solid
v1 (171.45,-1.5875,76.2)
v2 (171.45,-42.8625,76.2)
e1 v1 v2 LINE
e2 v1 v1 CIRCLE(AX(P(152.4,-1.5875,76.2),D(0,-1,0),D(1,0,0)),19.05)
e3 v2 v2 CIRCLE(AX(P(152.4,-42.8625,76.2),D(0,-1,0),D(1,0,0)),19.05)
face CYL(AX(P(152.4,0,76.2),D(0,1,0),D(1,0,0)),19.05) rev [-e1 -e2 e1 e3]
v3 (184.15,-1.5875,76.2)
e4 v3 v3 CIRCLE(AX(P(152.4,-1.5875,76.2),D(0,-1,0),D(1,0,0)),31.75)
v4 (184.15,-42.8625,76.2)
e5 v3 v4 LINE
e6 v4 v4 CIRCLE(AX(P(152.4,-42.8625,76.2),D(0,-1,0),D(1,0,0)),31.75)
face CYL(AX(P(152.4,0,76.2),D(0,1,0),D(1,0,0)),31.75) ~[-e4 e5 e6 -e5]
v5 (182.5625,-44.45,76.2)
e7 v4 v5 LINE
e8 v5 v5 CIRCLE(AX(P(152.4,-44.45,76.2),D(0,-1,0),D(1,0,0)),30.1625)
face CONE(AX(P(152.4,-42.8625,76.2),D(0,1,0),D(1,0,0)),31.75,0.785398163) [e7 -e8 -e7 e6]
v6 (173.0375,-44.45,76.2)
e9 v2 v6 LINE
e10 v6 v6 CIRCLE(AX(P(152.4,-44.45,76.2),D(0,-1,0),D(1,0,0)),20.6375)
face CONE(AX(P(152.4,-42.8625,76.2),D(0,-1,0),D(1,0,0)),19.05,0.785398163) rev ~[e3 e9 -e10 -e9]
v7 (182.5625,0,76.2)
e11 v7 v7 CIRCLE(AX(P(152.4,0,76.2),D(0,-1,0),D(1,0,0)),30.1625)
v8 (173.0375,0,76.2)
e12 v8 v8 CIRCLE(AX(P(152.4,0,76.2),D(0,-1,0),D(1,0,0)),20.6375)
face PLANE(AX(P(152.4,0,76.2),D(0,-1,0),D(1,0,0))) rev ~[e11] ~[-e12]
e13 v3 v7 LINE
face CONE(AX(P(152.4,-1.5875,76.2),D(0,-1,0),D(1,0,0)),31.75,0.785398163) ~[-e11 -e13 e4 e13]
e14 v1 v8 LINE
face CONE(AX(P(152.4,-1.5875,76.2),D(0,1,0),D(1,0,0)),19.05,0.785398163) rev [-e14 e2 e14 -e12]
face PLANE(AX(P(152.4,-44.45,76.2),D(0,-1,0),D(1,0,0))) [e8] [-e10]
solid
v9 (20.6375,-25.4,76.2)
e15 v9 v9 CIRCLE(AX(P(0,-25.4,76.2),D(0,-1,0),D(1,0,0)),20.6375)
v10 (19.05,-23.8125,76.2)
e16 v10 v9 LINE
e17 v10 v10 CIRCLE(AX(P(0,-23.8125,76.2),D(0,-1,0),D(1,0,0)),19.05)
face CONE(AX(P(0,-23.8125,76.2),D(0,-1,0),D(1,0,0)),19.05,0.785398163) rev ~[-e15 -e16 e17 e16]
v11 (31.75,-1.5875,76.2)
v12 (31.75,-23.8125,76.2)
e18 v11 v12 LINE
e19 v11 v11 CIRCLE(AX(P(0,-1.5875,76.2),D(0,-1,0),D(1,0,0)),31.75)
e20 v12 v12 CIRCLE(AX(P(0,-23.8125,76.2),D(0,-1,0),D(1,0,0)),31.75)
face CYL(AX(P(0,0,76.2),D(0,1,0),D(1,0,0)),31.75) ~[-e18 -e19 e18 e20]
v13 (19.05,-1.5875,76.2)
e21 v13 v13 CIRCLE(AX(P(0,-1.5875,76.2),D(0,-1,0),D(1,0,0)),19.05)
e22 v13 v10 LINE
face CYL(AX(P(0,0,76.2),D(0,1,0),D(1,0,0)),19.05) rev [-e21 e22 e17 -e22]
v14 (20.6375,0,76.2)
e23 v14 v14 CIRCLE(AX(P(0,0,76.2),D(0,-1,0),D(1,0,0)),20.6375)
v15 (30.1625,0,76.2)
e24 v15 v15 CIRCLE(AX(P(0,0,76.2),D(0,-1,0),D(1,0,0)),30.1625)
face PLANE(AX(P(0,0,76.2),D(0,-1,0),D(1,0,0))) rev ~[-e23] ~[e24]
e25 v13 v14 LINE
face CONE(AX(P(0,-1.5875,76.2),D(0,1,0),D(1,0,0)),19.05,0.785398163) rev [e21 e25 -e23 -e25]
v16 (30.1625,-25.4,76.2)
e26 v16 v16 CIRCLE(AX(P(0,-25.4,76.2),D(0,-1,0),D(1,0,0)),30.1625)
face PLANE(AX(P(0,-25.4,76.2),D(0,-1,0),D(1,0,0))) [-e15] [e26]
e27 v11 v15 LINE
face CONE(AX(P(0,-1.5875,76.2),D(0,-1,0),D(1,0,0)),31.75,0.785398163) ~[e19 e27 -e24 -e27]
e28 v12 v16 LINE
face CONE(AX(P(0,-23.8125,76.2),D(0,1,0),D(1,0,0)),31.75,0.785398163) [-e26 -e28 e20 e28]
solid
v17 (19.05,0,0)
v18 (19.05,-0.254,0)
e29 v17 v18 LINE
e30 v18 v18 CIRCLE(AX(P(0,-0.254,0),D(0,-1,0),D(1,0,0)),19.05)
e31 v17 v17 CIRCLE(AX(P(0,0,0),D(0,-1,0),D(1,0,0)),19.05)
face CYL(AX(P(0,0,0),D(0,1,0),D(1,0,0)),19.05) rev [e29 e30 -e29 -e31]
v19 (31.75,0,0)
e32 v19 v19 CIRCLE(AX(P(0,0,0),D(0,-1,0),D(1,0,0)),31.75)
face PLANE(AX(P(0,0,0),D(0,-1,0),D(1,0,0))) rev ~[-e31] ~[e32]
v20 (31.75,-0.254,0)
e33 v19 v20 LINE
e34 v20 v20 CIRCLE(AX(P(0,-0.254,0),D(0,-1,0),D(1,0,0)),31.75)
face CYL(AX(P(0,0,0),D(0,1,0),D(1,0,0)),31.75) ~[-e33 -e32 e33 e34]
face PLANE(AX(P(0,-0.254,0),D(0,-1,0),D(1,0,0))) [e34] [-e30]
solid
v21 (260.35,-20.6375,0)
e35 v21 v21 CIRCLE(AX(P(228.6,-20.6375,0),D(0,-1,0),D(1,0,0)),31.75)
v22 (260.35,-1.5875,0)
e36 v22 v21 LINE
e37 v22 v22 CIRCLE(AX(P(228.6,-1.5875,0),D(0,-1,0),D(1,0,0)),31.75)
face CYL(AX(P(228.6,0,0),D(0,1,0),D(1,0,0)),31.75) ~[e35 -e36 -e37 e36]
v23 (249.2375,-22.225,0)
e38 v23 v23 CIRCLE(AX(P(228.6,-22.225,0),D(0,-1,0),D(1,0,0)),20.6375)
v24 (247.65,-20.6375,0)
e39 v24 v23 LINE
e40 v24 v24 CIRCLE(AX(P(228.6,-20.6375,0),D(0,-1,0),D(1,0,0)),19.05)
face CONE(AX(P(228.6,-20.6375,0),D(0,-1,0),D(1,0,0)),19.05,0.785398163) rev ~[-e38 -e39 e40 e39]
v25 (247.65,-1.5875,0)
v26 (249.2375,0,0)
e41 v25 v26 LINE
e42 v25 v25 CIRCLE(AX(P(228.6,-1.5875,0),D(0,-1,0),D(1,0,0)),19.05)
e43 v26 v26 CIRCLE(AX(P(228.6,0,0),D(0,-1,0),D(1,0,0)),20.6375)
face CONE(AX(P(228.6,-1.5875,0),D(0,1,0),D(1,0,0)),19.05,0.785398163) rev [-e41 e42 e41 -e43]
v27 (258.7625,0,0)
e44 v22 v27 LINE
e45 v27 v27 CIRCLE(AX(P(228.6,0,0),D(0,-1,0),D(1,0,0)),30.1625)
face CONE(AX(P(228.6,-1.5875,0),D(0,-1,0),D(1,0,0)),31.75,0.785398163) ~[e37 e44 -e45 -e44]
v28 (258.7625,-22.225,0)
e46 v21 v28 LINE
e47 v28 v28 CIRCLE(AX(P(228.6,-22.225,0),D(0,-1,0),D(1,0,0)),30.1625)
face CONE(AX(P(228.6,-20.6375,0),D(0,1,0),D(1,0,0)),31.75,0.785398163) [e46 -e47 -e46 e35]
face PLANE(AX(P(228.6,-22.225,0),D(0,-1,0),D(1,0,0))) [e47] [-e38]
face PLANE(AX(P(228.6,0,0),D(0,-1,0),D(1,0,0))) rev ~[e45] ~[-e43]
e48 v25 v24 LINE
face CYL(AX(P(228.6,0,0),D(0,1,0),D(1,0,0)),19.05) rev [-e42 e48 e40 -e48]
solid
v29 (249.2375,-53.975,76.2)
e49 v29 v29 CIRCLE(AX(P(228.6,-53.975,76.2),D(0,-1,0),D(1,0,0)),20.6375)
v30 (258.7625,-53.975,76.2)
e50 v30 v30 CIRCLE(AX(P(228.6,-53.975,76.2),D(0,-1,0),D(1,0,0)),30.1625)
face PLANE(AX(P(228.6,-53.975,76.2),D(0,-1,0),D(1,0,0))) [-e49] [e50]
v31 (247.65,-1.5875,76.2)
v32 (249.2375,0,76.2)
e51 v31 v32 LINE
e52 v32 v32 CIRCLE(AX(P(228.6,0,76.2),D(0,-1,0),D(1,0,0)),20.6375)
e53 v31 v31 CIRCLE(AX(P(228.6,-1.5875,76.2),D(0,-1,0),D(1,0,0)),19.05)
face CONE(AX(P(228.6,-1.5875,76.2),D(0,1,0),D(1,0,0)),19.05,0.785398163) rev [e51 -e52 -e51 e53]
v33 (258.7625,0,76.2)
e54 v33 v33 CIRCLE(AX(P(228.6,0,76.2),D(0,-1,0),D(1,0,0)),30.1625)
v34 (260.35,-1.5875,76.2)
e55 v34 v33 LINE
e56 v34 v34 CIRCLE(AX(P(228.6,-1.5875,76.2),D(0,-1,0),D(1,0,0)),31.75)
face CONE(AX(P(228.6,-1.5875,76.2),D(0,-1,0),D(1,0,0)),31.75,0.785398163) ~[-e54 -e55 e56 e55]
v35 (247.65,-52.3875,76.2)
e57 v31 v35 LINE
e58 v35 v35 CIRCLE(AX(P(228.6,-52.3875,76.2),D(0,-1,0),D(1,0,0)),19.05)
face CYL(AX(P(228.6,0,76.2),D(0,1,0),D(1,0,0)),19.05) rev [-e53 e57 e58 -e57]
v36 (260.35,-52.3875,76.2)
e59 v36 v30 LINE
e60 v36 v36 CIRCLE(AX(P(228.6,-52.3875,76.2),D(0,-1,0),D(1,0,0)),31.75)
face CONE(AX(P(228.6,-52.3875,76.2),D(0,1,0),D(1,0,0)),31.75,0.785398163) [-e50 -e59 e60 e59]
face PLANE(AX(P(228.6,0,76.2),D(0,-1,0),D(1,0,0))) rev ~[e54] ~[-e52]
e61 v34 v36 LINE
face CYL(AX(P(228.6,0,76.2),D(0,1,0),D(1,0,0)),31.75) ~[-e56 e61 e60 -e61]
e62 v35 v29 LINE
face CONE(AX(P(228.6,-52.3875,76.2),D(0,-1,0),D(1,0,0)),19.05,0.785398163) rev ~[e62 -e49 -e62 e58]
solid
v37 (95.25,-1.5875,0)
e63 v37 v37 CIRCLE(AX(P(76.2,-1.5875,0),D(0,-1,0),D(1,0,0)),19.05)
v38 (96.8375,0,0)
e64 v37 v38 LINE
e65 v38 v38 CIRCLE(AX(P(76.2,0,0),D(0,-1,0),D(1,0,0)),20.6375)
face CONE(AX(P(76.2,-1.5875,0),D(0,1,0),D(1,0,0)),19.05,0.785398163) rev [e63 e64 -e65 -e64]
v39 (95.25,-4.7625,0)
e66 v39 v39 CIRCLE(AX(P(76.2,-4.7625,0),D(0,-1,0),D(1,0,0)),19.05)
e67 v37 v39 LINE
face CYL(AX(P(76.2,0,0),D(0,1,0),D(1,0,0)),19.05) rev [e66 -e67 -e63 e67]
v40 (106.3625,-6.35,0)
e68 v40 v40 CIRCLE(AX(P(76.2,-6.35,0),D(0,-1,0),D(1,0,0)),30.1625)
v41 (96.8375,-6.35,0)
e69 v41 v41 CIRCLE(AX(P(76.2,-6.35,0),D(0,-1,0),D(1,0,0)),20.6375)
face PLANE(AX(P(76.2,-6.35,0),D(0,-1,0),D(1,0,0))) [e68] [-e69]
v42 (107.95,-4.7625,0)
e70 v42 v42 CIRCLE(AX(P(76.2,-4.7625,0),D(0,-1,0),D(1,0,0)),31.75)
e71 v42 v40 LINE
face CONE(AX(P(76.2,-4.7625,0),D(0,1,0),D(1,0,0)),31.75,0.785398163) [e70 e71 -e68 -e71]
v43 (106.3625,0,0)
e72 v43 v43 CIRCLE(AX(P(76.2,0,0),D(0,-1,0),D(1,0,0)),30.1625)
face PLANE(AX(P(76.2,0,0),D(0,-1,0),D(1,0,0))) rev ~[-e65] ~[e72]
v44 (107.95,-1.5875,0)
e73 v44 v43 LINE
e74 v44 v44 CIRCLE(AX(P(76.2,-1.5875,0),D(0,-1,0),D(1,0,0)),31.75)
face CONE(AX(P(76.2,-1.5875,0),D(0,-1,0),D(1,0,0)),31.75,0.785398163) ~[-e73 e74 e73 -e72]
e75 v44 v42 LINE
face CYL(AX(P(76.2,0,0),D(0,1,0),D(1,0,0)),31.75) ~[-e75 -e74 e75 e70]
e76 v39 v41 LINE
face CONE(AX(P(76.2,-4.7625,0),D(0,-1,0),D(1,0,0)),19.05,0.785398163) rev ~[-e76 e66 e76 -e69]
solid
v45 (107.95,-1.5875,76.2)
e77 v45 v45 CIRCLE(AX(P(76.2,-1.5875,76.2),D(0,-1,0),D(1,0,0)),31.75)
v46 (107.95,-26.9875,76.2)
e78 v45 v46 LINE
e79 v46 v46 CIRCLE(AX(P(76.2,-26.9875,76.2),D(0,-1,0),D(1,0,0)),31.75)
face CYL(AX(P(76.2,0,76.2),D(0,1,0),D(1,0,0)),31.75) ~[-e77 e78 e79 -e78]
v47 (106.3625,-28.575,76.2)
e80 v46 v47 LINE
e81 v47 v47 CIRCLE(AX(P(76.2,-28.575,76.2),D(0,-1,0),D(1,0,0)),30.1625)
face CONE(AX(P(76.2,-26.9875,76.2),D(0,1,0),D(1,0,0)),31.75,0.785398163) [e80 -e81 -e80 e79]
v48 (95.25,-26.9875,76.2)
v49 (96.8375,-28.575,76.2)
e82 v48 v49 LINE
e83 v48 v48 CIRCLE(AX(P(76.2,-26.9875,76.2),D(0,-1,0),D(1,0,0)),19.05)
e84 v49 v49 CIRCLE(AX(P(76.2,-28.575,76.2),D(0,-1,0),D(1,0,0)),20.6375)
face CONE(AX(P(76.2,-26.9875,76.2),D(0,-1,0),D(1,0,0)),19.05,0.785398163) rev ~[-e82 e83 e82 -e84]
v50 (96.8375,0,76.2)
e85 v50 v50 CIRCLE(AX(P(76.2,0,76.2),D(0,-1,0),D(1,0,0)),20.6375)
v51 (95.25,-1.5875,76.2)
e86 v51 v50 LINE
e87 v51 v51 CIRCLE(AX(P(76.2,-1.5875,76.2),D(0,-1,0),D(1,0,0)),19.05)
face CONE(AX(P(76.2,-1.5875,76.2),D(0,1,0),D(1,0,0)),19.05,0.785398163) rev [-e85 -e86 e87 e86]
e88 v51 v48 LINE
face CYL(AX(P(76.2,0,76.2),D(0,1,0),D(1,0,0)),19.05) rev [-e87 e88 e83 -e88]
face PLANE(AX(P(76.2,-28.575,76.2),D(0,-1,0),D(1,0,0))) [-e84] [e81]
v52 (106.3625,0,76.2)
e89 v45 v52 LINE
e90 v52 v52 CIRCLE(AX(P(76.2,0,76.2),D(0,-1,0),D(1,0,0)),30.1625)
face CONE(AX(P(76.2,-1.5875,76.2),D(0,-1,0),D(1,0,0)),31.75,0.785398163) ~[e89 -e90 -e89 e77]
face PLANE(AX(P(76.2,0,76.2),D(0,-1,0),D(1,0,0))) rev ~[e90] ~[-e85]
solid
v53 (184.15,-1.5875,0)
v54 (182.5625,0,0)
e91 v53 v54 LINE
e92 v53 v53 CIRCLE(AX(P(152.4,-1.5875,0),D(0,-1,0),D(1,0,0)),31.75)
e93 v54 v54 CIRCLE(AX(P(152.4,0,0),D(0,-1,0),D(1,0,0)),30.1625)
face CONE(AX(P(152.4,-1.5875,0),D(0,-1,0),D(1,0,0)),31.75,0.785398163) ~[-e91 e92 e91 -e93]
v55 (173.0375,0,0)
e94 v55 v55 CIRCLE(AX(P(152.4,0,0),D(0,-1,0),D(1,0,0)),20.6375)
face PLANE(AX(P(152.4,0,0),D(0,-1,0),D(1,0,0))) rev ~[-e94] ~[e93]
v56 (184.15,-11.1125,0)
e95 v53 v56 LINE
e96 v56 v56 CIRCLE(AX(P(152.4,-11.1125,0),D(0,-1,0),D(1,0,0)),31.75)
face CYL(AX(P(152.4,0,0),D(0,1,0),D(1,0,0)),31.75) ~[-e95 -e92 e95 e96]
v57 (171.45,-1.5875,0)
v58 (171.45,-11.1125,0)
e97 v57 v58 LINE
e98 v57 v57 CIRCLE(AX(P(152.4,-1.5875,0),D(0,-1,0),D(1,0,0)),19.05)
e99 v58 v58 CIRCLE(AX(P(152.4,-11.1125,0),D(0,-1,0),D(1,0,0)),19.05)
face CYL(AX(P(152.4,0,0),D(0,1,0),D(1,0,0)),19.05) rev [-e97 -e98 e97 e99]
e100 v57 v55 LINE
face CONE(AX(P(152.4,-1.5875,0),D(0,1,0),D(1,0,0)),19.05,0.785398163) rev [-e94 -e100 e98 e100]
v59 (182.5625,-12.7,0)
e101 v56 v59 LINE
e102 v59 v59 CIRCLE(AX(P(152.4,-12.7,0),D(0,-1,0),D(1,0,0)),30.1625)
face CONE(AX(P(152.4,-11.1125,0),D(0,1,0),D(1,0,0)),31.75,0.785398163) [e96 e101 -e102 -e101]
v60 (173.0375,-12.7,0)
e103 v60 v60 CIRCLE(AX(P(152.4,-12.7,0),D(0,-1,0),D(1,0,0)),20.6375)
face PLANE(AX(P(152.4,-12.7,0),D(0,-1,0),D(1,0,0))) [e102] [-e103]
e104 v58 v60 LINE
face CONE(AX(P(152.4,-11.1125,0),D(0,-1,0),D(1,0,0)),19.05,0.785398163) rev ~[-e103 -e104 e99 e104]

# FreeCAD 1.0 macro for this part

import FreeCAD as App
import Part
import Sketcher
Q = App.Units.Quantity


def edges_at(feature, points):
    """Names of the edges that pass closest to the given points."""
    edges = feature.Shape.Edges
    near = lambda p: min(range(len(edges)), key=lambda i: edges[i].distToShape(Part.Vertex(*p))[0])
    return sorted({f"Edge{near(p) + 1}" for p in points})

doc = App.newDocument("Part")
params = doc.addObject("Spreadsheet::Sheet", "Params")
for row, (alias, value) in enumerate([
    ("sketch1_diameter", "2.5 in"),
    ("sketch1_diameter2", "1.5 in"),
    ("pad1_length", "0.01 in"),
    ("sketch2_diameter", "2.5 in"),
    ("sketch2_diameter2", "1.5 in"),
    ("pad2_length", "0.25 in"),
    ("chamfer_size", "0.0625 in"),
    ("sketch3_diameter", "2.5 in"),
    ("sketch3_diameter2", "1.5 in"),
    ("pad3_length", "0.5 in"),
    ("chamfer2_size", "0.0625 in"),
    ("sketch4_diameter", "2.5 in"),
    ("sketch4_diameter2", "1.5 in"),
    ("pad4_length", "0.875 in"),
    ("chamfer3_size", "0.0625 in"),
    ("sketch5_diameter", "2.5 in"),
    ("sketch5_diameter2", "1.5 in"),
    ("pad5_length", "1 in"),
    ("chamfer4_size", "0.0625 in"),
    ("sketch6_diameter", "2.5 in"),
    ("sketch6_diameter2", "1.5 in"),
    ("pad6_length", "1.125 in"),
    ("chamfer5_size", "0.0625 in"),
    ("sketch7_diameter", "2.5 in"),
    ("sketch7_diameter2", "1.5 in"),
    ("pad7_length", "1.75 in"),
    ("chamfer6_size", "0.0625 in"),
    ("sketch8_diameter", "2.5 in"),
    ("sketch8_diameter2", "1.5 in"),
    ("pad8_length", "2.125 in"),
    ("chamfer7_size", "0.0625 in"),
], start=1):
    params.set(f"A{row}", alias)
    params.set(f"B{row}", "=" + value)
    params.setAlias(f"B{row}", alias)

body = doc.addObject("PartDesign::Body", "Body")

sketch1 = body.newObject("Sketcher::SketchObject", "Sketch")
sketch1.AttachmentSupport = (doc.getObject("XZ_Plane"), [""])
sketch1.MapMode = "FlatFace"
sketch1.addGeometry(Part.Circle(App.Vector(0, 0, 0), App.Vector(0, 0, 1), 32), False)
sketch1.addGeometry(Part.Circle(App.Vector(0, 0, 0), App.Vector(0, 0, 1), 19), False)
sketch1.addConstraint(Sketcher.Constraint("Coincident", 0, 3, -1, 1))
sketch1.addConstraint(Sketcher.Constraint("Coincident", 1, 3, -1, 1))
sketch1.addConstraint(Sketcher.Constraint("Diameter", 0, Q("2.5 in")))
sketch1.addConstraint(Sketcher.Constraint("Diameter", 1, Q("1.5 in")))
sketch1.setExpression("Constraints[2]", "Params.sketch1_diameter")
sketch1.setExpression("Constraints[3]", "Params.sketch1_diameter2")
pad1 = body.newObject("PartDesign::Pad", "Pad")
pad1.Profile = sketch1
pad1.setExpression("Length", "Params.pad1_length")
body2 = doc.addObject("PartDesign::Body", "Body001")

sketch2 = body2.newObject("Sketcher::SketchObject", "Sketch001")
sketch2.AttachmentSupport = (doc.getObject("XZ_Plane001"), [""])
sketch2.MapMode = "FlatFace"
sketch2.addGeometry(Part.Circle(App.Vector(76, 0, 0), App.Vector(0, 0, 1), 32), False)
sketch2.addGeometry(Part.Circle(App.Vector(76, 0, 0), App.Vector(0, 0, 1), 19), False)
sketch2.addConstraint(Sketcher.Constraint("Coincident", 1, 3, 0, 3))
sketch2.addConstraint(Sketcher.Constraint("PointOnObject", 0, 3, -1))
sketch2.addConstraint(Sketcher.Constraint("Diameter", 0, Q("2.5 in")))
sketch2.addConstraint(Sketcher.Constraint("Diameter", 1, Q("1.5 in")))
sketch2.addConstraint(Sketcher.Constraint("DistanceX", -1, 1, 0, 3, Q("3 in")))
sketch2.setExpression("Constraints[2]", "Params.sketch2_diameter")
sketch2.setExpression("Constraints[3]", "Params.sketch2_diameter2")
pad2 = body2.newObject("PartDesign::Pad", "Pad001")
pad2.Profile = sketch2
pad2.setExpression("Length", "Params.pad2_length")
doc.recompute()

chamfer = body2.newObject("PartDesign::Chamfer", "Chamfer")
chamfer.Base = (pad2, edges_at(pad2, [
    (44.45, -6.35, 0),
    (57.15, -6.35, 0),
    (44.45, 0, 0),
    (57.15, 0, 0),
]))
chamfer.setExpression("Size", "Params.chamfer_size")
body3 = doc.addObject("PartDesign::Body", "Body002")

sketch3 = body3.newObject("Sketcher::SketchObject", "Sketch002")
sketch3.AttachmentSupport = (doc.getObject("XZ_Plane002"), [""])
sketch3.MapMode = "FlatFace"
sketch3.addGeometry(Part.Circle(App.Vector(152, 0, 0), App.Vector(0, 0, 1), 32), False)
sketch3.addGeometry(Part.Circle(App.Vector(152, 0, 0), App.Vector(0, 0, 1), 19), False)
sketch3.addConstraint(Sketcher.Constraint("Coincident", 1, 3, 0, 3))
sketch3.addConstraint(Sketcher.Constraint("PointOnObject", 0, 3, -1))
sketch3.addConstraint(Sketcher.Constraint("Diameter", 0, Q("2.5 in")))
sketch3.addConstraint(Sketcher.Constraint("Diameter", 1, Q("1.5 in")))
sketch3.addConstraint(Sketcher.Constraint("DistanceX", -1, 1, 0, 3, Q("6 in")))
sketch3.setExpression("Constraints[2]", "Params.sketch3_diameter")
sketch3.setExpression("Constraints[3]", "Params.sketch3_diameter2")
pad3 = body3.newObject("PartDesign::Pad", "Pad002")
pad3.Profile = sketch3
pad3.setExpression("Length", "Params.pad3_length")
doc.recompute()

chamfer2 = body3.newObject("PartDesign::Chamfer", "Chamfer001")
chamfer2.Base = (pad3, edges_at(pad3, [
    (120.65, -12.7, 0),
    (133.35, -12.7, 0),
    (120.65, 0, 0),
    (133.35, 0, 0),
]))
chamfer2.setExpression("Size", "Params.chamfer2_size")
body4 = doc.addObject("PartDesign::Body", "Body003")

sketch4 = body4.newObject("Sketcher::SketchObject", "Sketch003")
sketch4.AttachmentSupport = (doc.getObject("XZ_Plane003"), [""])
sketch4.MapMode = "FlatFace"
sketch4.addGeometry(Part.Circle(App.Vector(229, 0, 0), App.Vector(0, 0, 1), 32), False)
sketch4.addGeometry(Part.Circle(App.Vector(229, 0, 0), App.Vector(0, 0, 1), 19), False)
sketch4.addConstraint(Sketcher.Constraint("Coincident", 1, 3, 0, 3))
sketch4.addConstraint(Sketcher.Constraint("PointOnObject", 0, 3, -1))
sketch4.addConstraint(Sketcher.Constraint("Diameter", 0, Q("2.5 in")))
sketch4.addConstraint(Sketcher.Constraint("Diameter", 1, Q("1.5 in")))
sketch4.addConstraint(Sketcher.Constraint("DistanceX", -1, 1, 0, 3, Q("9 in")))
sketch4.setExpression("Constraints[2]", "Params.sketch4_diameter")
sketch4.setExpression("Constraints[3]", "Params.sketch4_diameter2")
pad4 = body4.newObject("PartDesign::Pad", "Pad003")
pad4.Profile = sketch4
pad4.setExpression("Length", "Params.pad4_length")
doc.recompute()

chamfer3 = body4.newObject("PartDesign::Chamfer", "Chamfer002")
chamfer3.Base = (pad4, edges_at(pad4, [
    (196.85, -22.225, 0),
    (209.55, -22.225, 0),
    (196.85, 0, 0),
    (209.55, 0, 0),
]))
chamfer3.setExpression("Size", "Params.chamfer3_size")
body5 = doc.addObject("PartDesign::Body", "Body004")

sketch5 = body5.newObject("Sketcher::SketchObject", "Sketch004")
sketch5.AttachmentSupport = (doc.getObject("XZ_Plane004"), [""])
sketch5.MapMode = "FlatFace"
sketch5.addGeometry(Part.Circle(App.Vector(0, 76, 0), App.Vector(0, 0, 1), 32), False)
sketch5.addGeometry(Part.Circle(App.Vector(0, 76, 0), App.Vector(0, 0, 1), 19), False)
sketch5.addConstraint(Sketcher.Constraint("Coincident", 1, 3, 0, 3))
sketch5.addConstraint(Sketcher.Constraint("PointOnObject", 0, 3, -2))
sketch5.addConstraint(Sketcher.Constraint("Diameter", 0, Q("2.5 in")))
sketch5.addConstraint(Sketcher.Constraint("Diameter", 1, Q("1.5 in")))
sketch5.addConstraint(Sketcher.Constraint("DistanceY", -1, 1, 0, 3, Q("3 in")))
sketch5.setExpression("Constraints[2]", "Params.sketch5_diameter")
sketch5.setExpression("Constraints[3]", "Params.sketch5_diameter2")
pad5 = body5.newObject("PartDesign::Pad", "Pad004")
pad5.Profile = sketch5
pad5.setExpression("Length", "Params.pad5_length")
doc.recompute()

chamfer4 = body5.newObject("PartDesign::Chamfer", "Chamfer003")
chamfer4.Base = (pad5, edges_at(pad5, [
    (-31.75, -25.4, 76.2),
    (-19.05, -25.4, 76.2),
    (-31.75, 0, 76.2),
    (-19.05, 0, 76.2),
]))
chamfer4.setExpression("Size", "Params.chamfer4_size")
body6 = doc.addObject("PartDesign::Body", "Body005")

sketch6 = body6.newObject("Sketcher::SketchObject", "Sketch005")
sketch6.AttachmentSupport = (doc.getObject("XZ_Plane005"), [""])
sketch6.MapMode = "FlatFace"
sketch6.addGeometry(Part.Circle(App.Vector(76, 76, 0), App.Vector(0, 0, 1), 32), False)
sketch6.addGeometry(Part.Circle(App.Vector(76, 76, 0), App.Vector(0, 0, 1), 19), False)
sketch6.addConstraint(Sketcher.Constraint("Coincident", 1, 3, 0, 3))
sketch6.addConstraint(Sketcher.Constraint("Diameter", 0, Q("2.5 in")))
sketch6.addConstraint(Sketcher.Constraint("Diameter", 1, Q("1.5 in")))
sketch6.addConstraint(Sketcher.Constraint("DistanceX", -1, 1, 0, 3, Q("3 in")))
sketch6.addConstraint(Sketcher.Constraint("DistanceY", -1, 1, 0, 3, Q("3 in")))
sketch6.setExpression("Constraints[1]", "Params.sketch6_diameter")
sketch6.setExpression("Constraints[2]", "Params.sketch6_diameter2")
pad6 = body6.newObject("PartDesign::Pad", "Pad005")
pad6.Profile = sketch6
pad6.setExpression("Length", "Params.pad6_length")
doc.recompute()

chamfer5 = body6.newObject("PartDesign::Chamfer", "Chamfer004")
chamfer5.Base = (pad6, edges_at(pad6, [
    (44.45, -28.575, 76.2),
    (57.15, -28.575, 76.2),
    (44.45, 0, 76.2),
    (57.15, 0, 76.2),
]))
chamfer5.setExpression("Size", "Params.chamfer5_size")
body7 = doc.addObject("PartDesign::Body", "Body006")

sketch7 = body7.newObject("Sketcher::SketchObject", "Sketch006")
sketch7.AttachmentSupport = (doc.getObject("XZ_Plane006"), [""])
sketch7.MapMode = "FlatFace"
sketch7.addGeometry(Part.Circle(App.Vector(152, 76, 0), App.Vector(0, 0, 1), 32), False)
sketch7.addGeometry(Part.Circle(App.Vector(152, 76, 0), App.Vector(0, 0, 1), 19), False)
sketch7.addConstraint(Sketcher.Constraint("Coincident", 1, 3, 0, 3))
sketch7.addConstraint(Sketcher.Constraint("Diameter", 0, Q("2.5 in")))
sketch7.addConstraint(Sketcher.Constraint("Diameter", 1, Q("1.5 in")))
sketch7.addConstraint(Sketcher.Constraint("DistanceX", -1, 1, 0, 3, Q("6 in")))
sketch7.addConstraint(Sketcher.Constraint("DistanceY", -1, 1, 0, 3, Q("3 in")))
sketch7.setExpression("Constraints[1]", "Params.sketch7_diameter")
sketch7.setExpression("Constraints[2]", "Params.sketch7_diameter2")
pad7 = body7.newObject("PartDesign::Pad", "Pad006")
pad7.Profile = sketch7
pad7.setExpression("Length", "Params.pad7_length")
doc.recompute()

chamfer6 = body7.newObject("PartDesign::Chamfer", "Chamfer005")
chamfer6.Base = (pad7, edges_at(pad7, [
    (120.65, -44.45, 76.2),
    (133.35, -44.45, 76.2),
    (120.65, 0, 76.2),
    (133.35, 0, 76.2),
]))
chamfer6.setExpression("Size", "Params.chamfer6_size")
body8 = doc.addObject("PartDesign::Body", "Body007")

sketch8 = body8.newObject("Sketcher::SketchObject", "Sketch007")
sketch8.AttachmentSupport = (doc.getObject("XZ_Plane007"), [""])
sketch8.MapMode = "FlatFace"
sketch8.addGeometry(Part.Circle(App.Vector(229, 76, 0), App.Vector(0, 0, 1), 32), False)
sketch8.addGeometry(Part.Circle(App.Vector(229, 76, 0), App.Vector(0, 0, 1), 19), False)
sketch8.addConstraint(Sketcher.Constraint("Coincident", 1, 3, 0, 3))
sketch8.addConstraint(Sketcher.Constraint("Diameter", 0, Q("2.5 in")))
sketch8.addConstraint(Sketcher.Constraint("Diameter", 1, Q("1.5 in")))
sketch8.addConstraint(Sketcher.Constraint("DistanceX", -1, 1, 0, 3, Q("9 in")))
sketch8.addConstraint(Sketcher.Constraint("DistanceY", -1, 1, 0, 3, Q("3 in")))
sketch8.setExpression("Constraints[1]", "Params.sketch8_diameter")
sketch8.setExpression("Constraints[2]", "Params.sketch8_diameter2")
pad8 = body8.newObject("PartDesign::Pad", "Pad007")
pad8.Profile = sketch8
pad8.setExpression("Length", "Params.pad8_length")
doc.recompute()

chamfer7 = body8.newObject("PartDesign::Chamfer", "Chamfer006")
chamfer7.Base = (pad8, edges_at(pad8, [
    (196.85, -53.975, 76.2),
    (209.55, -53.975, 76.2),
    (196.85, 0, 76.2),
    (209.55, 0, 76.2),
]))
chamfer7.setExpression("Size", "Params.chamfer7_size")

doc.recompute()
